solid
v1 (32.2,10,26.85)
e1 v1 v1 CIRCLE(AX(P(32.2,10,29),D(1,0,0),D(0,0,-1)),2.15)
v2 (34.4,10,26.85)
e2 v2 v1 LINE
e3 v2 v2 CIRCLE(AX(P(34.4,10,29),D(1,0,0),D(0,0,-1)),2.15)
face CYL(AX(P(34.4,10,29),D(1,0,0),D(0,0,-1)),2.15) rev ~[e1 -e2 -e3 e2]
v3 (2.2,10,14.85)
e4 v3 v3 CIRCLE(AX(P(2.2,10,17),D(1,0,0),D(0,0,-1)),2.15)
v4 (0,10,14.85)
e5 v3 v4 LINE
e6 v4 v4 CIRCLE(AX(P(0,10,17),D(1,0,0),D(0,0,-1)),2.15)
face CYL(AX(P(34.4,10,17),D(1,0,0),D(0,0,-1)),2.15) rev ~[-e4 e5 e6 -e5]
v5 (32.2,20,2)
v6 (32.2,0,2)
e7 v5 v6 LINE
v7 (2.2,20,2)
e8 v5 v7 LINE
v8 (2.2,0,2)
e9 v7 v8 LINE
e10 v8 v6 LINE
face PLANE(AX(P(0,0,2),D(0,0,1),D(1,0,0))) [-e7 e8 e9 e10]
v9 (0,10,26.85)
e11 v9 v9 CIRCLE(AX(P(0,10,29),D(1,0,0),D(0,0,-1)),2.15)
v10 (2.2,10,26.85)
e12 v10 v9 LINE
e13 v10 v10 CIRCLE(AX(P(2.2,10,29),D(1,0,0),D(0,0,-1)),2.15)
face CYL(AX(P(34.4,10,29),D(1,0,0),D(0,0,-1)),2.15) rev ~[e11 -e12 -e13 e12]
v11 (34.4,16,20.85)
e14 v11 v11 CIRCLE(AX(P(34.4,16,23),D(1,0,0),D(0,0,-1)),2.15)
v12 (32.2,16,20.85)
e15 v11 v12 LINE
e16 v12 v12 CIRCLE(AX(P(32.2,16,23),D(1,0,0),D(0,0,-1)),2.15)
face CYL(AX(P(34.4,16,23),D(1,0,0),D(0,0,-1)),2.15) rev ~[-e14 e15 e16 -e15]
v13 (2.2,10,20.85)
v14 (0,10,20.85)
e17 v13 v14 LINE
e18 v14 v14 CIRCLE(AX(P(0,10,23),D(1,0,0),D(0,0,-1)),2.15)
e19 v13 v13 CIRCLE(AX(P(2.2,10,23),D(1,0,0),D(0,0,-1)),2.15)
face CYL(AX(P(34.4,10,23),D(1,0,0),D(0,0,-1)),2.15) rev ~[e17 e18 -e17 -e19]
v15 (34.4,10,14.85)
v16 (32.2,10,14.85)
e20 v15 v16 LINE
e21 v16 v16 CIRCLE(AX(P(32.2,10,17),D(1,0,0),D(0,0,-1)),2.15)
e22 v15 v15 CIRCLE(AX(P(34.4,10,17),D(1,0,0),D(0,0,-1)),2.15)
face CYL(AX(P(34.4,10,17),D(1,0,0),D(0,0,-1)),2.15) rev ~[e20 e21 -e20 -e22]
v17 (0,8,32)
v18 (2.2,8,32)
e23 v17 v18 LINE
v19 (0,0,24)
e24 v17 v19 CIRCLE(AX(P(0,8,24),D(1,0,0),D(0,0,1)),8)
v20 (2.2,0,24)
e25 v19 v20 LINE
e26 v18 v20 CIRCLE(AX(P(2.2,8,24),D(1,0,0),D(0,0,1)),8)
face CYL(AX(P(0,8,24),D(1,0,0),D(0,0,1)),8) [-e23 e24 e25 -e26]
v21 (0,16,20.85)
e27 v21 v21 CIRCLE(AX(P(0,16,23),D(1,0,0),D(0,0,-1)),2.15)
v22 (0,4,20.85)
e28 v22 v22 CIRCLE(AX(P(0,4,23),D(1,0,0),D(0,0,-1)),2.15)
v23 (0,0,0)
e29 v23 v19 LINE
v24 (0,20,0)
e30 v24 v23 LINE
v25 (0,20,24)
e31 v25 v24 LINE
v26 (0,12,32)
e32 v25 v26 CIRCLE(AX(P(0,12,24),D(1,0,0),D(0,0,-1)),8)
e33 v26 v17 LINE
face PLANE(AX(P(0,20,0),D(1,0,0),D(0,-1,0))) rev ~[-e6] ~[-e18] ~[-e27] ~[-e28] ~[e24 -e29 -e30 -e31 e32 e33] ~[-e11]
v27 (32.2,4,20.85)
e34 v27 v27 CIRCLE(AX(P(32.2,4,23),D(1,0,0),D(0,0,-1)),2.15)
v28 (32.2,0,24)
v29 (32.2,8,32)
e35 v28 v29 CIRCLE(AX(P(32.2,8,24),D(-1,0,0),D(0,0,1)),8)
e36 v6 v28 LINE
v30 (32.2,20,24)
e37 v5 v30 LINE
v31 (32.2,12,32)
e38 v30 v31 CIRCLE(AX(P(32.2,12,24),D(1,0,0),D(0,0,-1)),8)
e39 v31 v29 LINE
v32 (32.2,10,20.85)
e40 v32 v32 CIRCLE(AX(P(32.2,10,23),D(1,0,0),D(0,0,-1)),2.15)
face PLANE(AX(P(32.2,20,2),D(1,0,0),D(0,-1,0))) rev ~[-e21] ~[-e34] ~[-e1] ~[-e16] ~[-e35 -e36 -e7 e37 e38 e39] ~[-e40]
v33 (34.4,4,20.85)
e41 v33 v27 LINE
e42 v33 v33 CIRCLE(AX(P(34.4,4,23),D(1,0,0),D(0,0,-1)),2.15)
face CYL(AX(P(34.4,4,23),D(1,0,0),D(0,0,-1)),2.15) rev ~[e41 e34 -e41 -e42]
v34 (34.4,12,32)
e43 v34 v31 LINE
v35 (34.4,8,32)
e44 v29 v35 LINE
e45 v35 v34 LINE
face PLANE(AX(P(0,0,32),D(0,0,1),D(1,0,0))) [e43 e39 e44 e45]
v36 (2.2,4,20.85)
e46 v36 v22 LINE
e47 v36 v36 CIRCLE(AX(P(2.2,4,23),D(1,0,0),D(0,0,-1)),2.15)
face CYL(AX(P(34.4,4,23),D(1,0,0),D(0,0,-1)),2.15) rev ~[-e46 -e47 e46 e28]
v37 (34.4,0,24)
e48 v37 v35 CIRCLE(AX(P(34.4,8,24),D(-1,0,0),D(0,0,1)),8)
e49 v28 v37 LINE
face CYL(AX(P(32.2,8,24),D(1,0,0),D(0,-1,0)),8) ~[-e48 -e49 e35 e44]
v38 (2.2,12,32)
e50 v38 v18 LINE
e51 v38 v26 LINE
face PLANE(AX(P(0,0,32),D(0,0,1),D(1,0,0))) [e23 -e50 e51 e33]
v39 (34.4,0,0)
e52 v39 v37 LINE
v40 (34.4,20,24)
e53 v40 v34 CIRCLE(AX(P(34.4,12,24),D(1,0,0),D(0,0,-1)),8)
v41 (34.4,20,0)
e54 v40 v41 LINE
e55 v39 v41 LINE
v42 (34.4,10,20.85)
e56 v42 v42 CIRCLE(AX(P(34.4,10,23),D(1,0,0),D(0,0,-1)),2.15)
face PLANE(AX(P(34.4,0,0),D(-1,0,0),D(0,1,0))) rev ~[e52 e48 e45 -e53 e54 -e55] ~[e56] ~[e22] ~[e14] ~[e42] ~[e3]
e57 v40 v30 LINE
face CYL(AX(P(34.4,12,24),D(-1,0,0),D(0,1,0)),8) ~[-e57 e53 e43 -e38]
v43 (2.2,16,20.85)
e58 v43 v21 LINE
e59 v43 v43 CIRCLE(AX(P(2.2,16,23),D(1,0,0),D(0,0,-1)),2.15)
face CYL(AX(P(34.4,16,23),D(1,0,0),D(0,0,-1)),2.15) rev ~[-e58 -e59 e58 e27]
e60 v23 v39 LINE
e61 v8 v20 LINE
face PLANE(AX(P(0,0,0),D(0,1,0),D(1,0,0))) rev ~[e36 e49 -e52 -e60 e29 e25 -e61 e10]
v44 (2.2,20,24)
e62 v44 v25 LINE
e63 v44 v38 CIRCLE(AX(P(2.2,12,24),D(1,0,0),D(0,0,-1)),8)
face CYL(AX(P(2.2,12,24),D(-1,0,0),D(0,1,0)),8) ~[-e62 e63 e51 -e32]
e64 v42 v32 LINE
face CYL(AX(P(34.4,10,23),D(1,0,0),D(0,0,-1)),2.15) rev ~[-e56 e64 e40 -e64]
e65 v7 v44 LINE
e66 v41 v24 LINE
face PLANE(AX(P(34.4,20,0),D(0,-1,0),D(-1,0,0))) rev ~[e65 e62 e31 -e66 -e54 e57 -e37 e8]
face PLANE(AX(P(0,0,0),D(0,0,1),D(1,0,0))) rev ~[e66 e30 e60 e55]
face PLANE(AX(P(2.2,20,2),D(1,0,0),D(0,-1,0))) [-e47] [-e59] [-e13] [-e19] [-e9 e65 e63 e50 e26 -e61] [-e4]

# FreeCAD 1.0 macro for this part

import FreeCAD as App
import Part
import Sketcher
Q = App.Units.Quantity


def edges_at(feature, points):
    """Names of the edges that pass closest to the given points."""
    edges = feature.Shape.Edges
    near = lambda p: min(range(len(edges)), key=lambda i: edges[i].distToShape(Part.Vertex(*p))[0])
    return sorted({f"Edge{near(p) + 1}" for p in points})

doc = App.newDocument("Part")
body = doc.addObject("PartDesign::Body", "Body")

sketch1 = doc.addObject("Sketcher::SketchObject", "Sketch")
body.addObject(sketch1)
sketch1.AttachmentSupport = (doc.XY_Plane, [""])
sketch1.MapMode = "FlatFace"
sketch1.addGeometry([
    Part.LineSegment(App.Vector(0, 20, 0), App.Vector(0, 0, 0)),
    Part.LineSegment(App.Vector(0, 0, 0), App.Vector(34, 0, 0)),
    Part.LineSegment(App.Vector(34, 0, 0), App.Vector(34, 20, 0)),
    Part.LineSegment(App.Vector(34, 20, 0), App.Vector(0, 20, 0)),
], False)
sketch1.addConstraint([
    Sketcher.Constraint("Coincident", 0, 2, 1, 1),
    Sketcher.Constraint("Coincident", 1, 2, 2, 1),
    Sketcher.Constraint("Coincident", 2, 2, 3, 1),
    Sketcher.Constraint("Coincident", 3, 2, 0, 1),
    Sketcher.Constraint("Vertical", 0),
    Sketcher.Constraint("Horizontal", 1),
    Sketcher.Constraint("Vertical", 2),
    Sketcher.Constraint("Horizontal", 3),
    Sketcher.Constraint("Coincident", 0, 2, -1, 1),
    Sketcher.Constraint("DistanceY", 0, 2, 0, 1, Q("20 mm")),
    Sketcher.Constraint("DistanceX", 1, 1, 1, 2, Q("34.4 mm")),
])
pad1 = doc.addObject("PartDesign::Pad", "Pad")
body.addObject(pad1)
pad1.Profile = sketch1
pad1.Length = 2

sketch2 = doc.addObject("Sketcher::SketchObject", "Sketch001")
body.addObject(sketch2)
sketch2.AttachmentSupport = (doc.XY_Plane, [""])
sketch2.MapMode = "FlatFace"
sketch2.AttachmentOffset = App.Placement(App.Vector(0, 0, 2), App.Rotation())
sketch2.addGeometry([
    Part.LineSegment(App.Vector(0, 20, 0), App.Vector(0, 0, 0)),
    Part.LineSegment(App.Vector(0, 0, 0), App.Vector(2.2, 0, 0)),
    Part.LineSegment(App.Vector(2.2, 0, 0), App.Vector(2.2, 20, 0)),
    Part.LineSegment(App.Vector(2.2, 20, 0), App.Vector(0, 20, 0)),
    Part.LineSegment(App.Vector(32.2, 20, 0), App.Vector(32.2, 0, 0)),
    Part.LineSegment(App.Vector(32.2, 0, 0), App.Vector(34.4, 0, 0)),
    Part.LineSegment(App.Vector(34.4, 0, 0), App.Vector(34.4, 20, 0)),
    Part.LineSegment(App.Vector(34.4, 20, 0), App.Vector(32.2, 20, 0)),
], False)
sketch2.addConstraint([
    Sketcher.Constraint("Coincident", 0, 2, 1, 1),
    Sketcher.Constraint("Coincident", 1, 2, 2, 1),
    Sketcher.Constraint("Coincident", 2, 2, 3, 1),
    Sketcher.Constraint("Coincident", 3, 2, 0, 1),
    Sketcher.Constraint("Coincident", 4, 2, 5, 1),
    Sketcher.Constraint("Coincident", 5, 2, 6, 1),
    Sketcher.Constraint("Coincident", 6, 2, 7, 1),
    Sketcher.Constraint("Coincident", 7, 2, 4, 1),
    Sketcher.Constraint("Vertical", 0),
    Sketcher.Constraint("Horizontal", 1),
    Sketcher.Constraint("Vertical", 2),
    Sketcher.Constraint("Horizontal", 3),
    Sketcher.Constraint("Vertical", 4),
    Sketcher.Constraint("Horizontal", 5),
    Sketcher.Constraint("Vertical", 6),
    Sketcher.Constraint("Horizontal", 7),
    Sketcher.Constraint("Coincident", 0, 2, -1, 1),
    Sketcher.Constraint("PointOnObject", 4, 2, -1),
    Sketcher.Constraint("Horizontal", 3, 2, 6, 2),
    Sketcher.Constraint("Equal", 3, 5),
    Sketcher.Constraint("DistanceX", 1, 1, 1, 2, Q("2.2 mm")),
    Sketcher.Constraint("DistanceY", 0, 2, 0, 1, Q("20 mm")),
    Sketcher.Constraint("DistanceX", 1, 2, 4, 2, Q("30 mm")),
])
pad2 = doc.addObject("PartDesign::Pad", "Pad001")
body.addObject(pad2)
pad2.Profile = sketch2
pad2.Length = 30

sketch3 = doc.addObject("Sketcher::SketchObject", "Sketch002")
body.addObject(sketch3)
sketch3.AttachmentSupport = (doc.YZ_Plane, [""])
sketch3.MapMode = "FlatFace"
sketch3.AttachmentOffset = App.Placement(App.Vector(0, 0, 34.4), App.Rotation())
sketch3.addGeometry([
    Part.Circle(App.Vector(10, 23, 0), App.Vector(0, 0, 1), 2.1),
    Part.Circle(App.Vector(10, 17, 0), App.Vector(0, 0, 1), 2.1),
    Part.Circle(App.Vector(10, 29, 0), App.Vector(0, 0, 1), 2.1),
    Part.Circle(App.Vector(16, 23, 0), App.Vector(0, 0, 1), 2.1),
    Part.Circle(App.Vector(4, 23, 0), App.Vector(0, 0, 1), 2.1),
], False)
sketch3.addConstraint([
    Sketcher.Constraint("Equal", 0, 1),
    Sketcher.Constraint("Equal", 1, 2),
    Sketcher.Constraint("Equal", 2, 3),
    Sketcher.Constraint("Equal", 3, 4),
    Sketcher.Constraint("Horizontal", 0, 3, 3, 3),
    Sketcher.Constraint("Horizontal", 3, 3, 4, 3),
    Sketcher.Constraint("Vertical", 0, 3, 1, 3),
    Sketcher.Constraint("Vertical", 1, 3, 2, 3),
    Sketcher.Constraint("Diameter", 0, Q("4.3 mm")),
    Sketcher.Constraint("DistanceY", 1, 3, 0, 3, Q("6 mm")),
    Sketcher.Constraint("DistanceY", 0, 3, 2, 3, Q("6 mm")),
    Sketcher.Constraint("DistanceX", 0, 3, 3, 3, Q("6 mm")),
    Sketcher.Constraint("DistanceX", 4, 3, 0, 3, Q("6 mm")),
    Sketcher.Constraint("DistanceX", -1, 1, 0, 3, Q("10 mm")),
    Sketcher.Constraint("DistanceY", -1, 1, 0, 3, Q("23 mm")),
])
pocket1 = doc.addObject("PartDesign::Pocket", "Pocket")
body.addObject(pocket1)
pocket1.Profile = sketch3
pocket1.Type = "ThroughAll"
doc.recompute()

fillet = doc.addObject("PartDesign::Fillet", "Fillet")
body.addObject(fillet)
fillet.Base = (pocket1, edges_at(pocket1, [
    (33.3, 20, 32),
    (1.1, 20, 32),
    (1.1, 0, 32),
    (33.3, 0, 32),
]))
fillet.Radius = 8

doc.recompute()
